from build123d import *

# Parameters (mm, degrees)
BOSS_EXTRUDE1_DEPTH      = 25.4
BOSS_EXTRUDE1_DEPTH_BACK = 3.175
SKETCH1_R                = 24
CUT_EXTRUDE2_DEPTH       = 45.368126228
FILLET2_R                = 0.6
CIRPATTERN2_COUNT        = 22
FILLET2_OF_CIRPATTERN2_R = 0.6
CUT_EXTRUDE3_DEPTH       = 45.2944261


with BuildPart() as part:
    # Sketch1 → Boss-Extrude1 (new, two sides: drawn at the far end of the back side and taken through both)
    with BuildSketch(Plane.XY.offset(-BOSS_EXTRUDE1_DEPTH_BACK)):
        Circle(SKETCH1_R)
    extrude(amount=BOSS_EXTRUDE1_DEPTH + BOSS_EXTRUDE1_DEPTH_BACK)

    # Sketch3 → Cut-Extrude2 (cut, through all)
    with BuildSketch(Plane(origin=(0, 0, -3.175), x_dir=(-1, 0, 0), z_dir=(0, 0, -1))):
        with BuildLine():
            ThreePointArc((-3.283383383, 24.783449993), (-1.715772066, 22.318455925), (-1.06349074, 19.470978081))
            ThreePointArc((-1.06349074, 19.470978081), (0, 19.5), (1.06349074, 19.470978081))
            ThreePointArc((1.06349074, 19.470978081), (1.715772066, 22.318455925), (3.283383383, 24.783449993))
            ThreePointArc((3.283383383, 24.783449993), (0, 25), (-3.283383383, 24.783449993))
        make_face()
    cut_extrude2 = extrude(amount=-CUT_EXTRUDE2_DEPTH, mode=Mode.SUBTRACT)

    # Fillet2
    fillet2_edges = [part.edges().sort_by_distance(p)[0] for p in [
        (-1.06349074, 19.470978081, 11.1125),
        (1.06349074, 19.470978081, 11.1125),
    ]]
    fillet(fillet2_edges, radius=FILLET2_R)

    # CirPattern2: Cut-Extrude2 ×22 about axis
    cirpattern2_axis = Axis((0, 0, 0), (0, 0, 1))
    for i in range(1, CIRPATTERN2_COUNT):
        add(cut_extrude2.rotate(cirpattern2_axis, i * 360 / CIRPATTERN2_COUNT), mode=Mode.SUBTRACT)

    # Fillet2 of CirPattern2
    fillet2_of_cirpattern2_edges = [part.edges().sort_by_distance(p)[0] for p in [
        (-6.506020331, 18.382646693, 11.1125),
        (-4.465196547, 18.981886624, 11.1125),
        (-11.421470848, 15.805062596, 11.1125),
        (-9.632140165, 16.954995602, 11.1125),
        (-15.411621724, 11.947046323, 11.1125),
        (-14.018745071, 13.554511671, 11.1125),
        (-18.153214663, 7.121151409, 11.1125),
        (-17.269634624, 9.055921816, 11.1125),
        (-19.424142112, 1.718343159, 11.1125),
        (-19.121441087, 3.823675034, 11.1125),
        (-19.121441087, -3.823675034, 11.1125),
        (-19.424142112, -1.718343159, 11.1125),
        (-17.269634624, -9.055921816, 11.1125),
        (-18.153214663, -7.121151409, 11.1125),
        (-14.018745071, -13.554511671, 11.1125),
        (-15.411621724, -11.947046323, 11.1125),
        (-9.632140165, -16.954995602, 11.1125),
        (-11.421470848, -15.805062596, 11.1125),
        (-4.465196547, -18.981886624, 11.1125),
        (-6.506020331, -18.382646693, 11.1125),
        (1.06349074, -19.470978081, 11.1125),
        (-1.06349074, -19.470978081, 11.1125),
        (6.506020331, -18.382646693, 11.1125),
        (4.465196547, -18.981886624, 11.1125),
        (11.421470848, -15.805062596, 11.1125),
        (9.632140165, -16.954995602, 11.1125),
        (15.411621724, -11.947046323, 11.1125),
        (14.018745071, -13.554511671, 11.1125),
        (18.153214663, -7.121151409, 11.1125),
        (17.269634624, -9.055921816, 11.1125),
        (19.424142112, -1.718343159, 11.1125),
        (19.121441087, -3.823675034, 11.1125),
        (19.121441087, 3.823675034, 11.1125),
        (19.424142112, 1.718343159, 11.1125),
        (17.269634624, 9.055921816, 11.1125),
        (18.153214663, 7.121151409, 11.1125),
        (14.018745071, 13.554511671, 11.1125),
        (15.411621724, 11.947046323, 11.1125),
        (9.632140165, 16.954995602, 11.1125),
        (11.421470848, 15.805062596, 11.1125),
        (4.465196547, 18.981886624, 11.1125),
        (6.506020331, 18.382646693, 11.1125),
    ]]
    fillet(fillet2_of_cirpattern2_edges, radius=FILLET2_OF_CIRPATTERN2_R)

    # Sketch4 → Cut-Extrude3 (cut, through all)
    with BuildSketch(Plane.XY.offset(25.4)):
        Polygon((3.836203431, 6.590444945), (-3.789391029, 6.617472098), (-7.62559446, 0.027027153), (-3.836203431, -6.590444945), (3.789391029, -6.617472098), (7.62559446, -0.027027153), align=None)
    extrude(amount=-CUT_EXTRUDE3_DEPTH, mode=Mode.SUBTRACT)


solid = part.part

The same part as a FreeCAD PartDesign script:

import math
import FreeCAD as App
import Part
import Sketcher

V = App.Vector
Q = App.Units.Quantity


def edges_at(feature, points):
    """Names of the edges that pass closest to the given points."""
    edges = feature.Shape.Edges
    near = lambda p: min(range(len(edges)), key=lambda i: edges[i].distToShape(Part.Vertex(*p))[0])
    return sorted({f"Edge{near(p) + 1}" for p in points})


def add_polygon(sketch, points):
    """Adds a closed chain of lines whose ends are joined by coincident constraints."""
    first, n = sketch.GeometryCount, len(points)
    for a, b in zip(points, points[1:] + points[:1]):
        sketch.addGeometry(Part.LineSegment(App.Vector(*a, 0), App.Vector(*b, 0)), False)
    for i in range(n):
        sketch.addConstraint(Sketcher.Constraint("Coincident", first + i, 2, first + (i + 1) % n, 1))

doc = App.newDocument("Part")
body = doc.addObject("PartDesign::Body", "Body")

sketch1 = body.newObject("Sketcher::SketchObject", "Sketch")
sketch1.AttachmentSupport = (doc.getObject("XY_Plane"), [""])
sketch1.MapMode = "FlatFace"
sketch1.addGeometry(Part.Circle(V(0, 0, 0), V(0, 0, 1), 24), False)
sketch1.addConstraint([
    Sketcher.Constraint("Coincident", 0, 3, -1, 1),
    Sketcher.Constraint("Diameter", 0, Q("48 mm")),
])
pad1 = body.newObject("PartDesign::Pad", "Pad")
pad1.Profile = sketch1
pad1.Type = "TwoLengths"
pad1.Length = 25.4
pad1.Length2 = 3.175

sketch2 = body.newObject("Sketcher::SketchObject", "Sketch001")
sketch2.AttachmentSupport = (doc.getObject("XY_Plane"), [""])
sketch2.MapMode = "FlatFace"
sketch2.AttachmentOffset = App.Placement(V(0, 0, -3.175), App.Rotation())
sketch2.addGeometry([
    Part.ArcOfCircle(Part.Circle(V(9.652851, 19.001833, 0), V(0, 0, 1), 8.602163), math.radians(137.769725), math.radians(176.873652)),
    Part.ArcOfCircle(Part.Circle(V(0, 0, 0), V(0, 0, 1), 19.5), math.radians(86.873652), math.radians(93.126348)),
    Part.ArcOfCircle(Part.Circle(V(-9.652851, 19.001833, 0), V(0, 0, 1), 8.602163), math.radians(3.126348), math.radians(42.230275)),
    Part.ArcOfCircle(Part.Circle(V(0, 0, 0), V(0, 0, 1), 25), math.radians(82.453237), math.radians(97.546763)),
], False)
sketch2.addConstraint([
    Sketcher.Constraint("Coincident", 0, 2, 1, 1),
    Sketcher.Constraint("Coincident", 1, 2, 2, 1),
    Sketcher.Constraint("Coincident", 2, 2, 3, 2),
    Sketcher.Constraint("Coincident", 3, 1, 0, 1),
    Sketcher.Constraint("Coincident", 1, 3, -1, 1),
    Sketcher.Constraint("Coincident", 3, 3, -1, 1),
    Sketcher.Constraint("Equal", 0, 2),
    Sketcher.Constraint("Symmetric", 0, 3, 2, 3, -2),
    Sketcher.Constraint("Radius", 3, Q("25 mm")),
    Sketcher.Constraint("Radius", 1, Q("19.5 mm")),
    Sketcher.Constraint("Radius", 0, Q("8.602163 mm")),
    Sketcher.Constraint("DistanceX", -1, 1, 0, 3, Q("9.652851 mm")),
    Sketcher.Constraint("DistanceX", -1, 1, 0, 2, Q("1.063491 mm")),
])
pocket1 = body.newObject("PartDesign::Pocket", "Pocket")
pocket1.Profile = sketch2
pocket1.Type = "ThroughAll"
pocket1.Reversed = True
doc.recompute()

fillet = body.newObject("PartDesign::Fillet", "Fillet")
fillet.Base = (pocket1, edges_at(pocket1, [(-1.063, 19.471, 11.113), (1.063, 19.471, 11.113)]))
fillet.Radius = 0.6
doc.recompute()

polarpattern = body.newObject("PartDesign::PolarPattern", "PolarPattern")
polarpattern.Originals = [pocket1]
polarpattern.Axis = (doc.getObject("Z_Axis"), [""])
polarpattern.Angle = 360
polarpattern.Occurrences = 22
body.Tip = polarpattern
doc.recompute()

fillet2 = body.newObject("PartDesign::Fillet", "Fillet001")
fillet2.Base = (polarpattern, edges_at(polarpattern, [
    (-6.506, 18.383, 11.113),
    (-4.465, 18.982, 11.113),
    (-11.421, 15.805, 11.113),
    (-9.632, 16.955, 11.113),
    (-15.412, 11.947, 11.113),
    (-14.019, 13.555, 11.113),
    (-18.153, 7.121, 11.113),
    (-17.27, 9.056, 11.113),
    (-19.424, 1.718, 11.113),
    (-19.121, 3.824, 11.113),
    (-19.121, -3.824, 11.113),
    (-19.424, -1.718, 11.113),
    (-17.27, -9.056, 11.113),
    (-18.153, -7.121, 11.113),
    (-14.019, -13.555, 11.113),
    (-15.412, -11.947, 11.113),
    (-9.632, -16.955, 11.113),
    (-11.421, -15.805, 11.113),
    (-4.465, -18.982, 11.113),
    (-6.506, -18.383, 11.113),
    (1.063, -19.471, 11.113),
    (-1.063, -19.471, 11.113),
    (6.506, -18.383, 11.113),
    (4.465, -18.982, 11.113),
    (11.421, -15.805, 11.113),
    (9.632, -16.955, 11.113),
    (15.412, -11.947, 11.113),
    (14.019, -13.555, 11.113),
    (18.153, -7.121, 11.113),
    (17.27, -9.056, 11.113),
    (19.424, -1.718, 11.113),
    (19.121, -3.824, 11.113),
    (19.121, 3.824, 11.113),
    (19.424, 1.718, 11.113),
    (17.27, 9.056, 11.113),
    (18.153, 7.121, 11.113),
    (14.019, 13.555, 11.113),
    (15.412, 11.947, 11.113),
    (9.632, 16.955, 11.113),
    (11.421, 15.805, 11.113),
    (4.465, 18.982, 11.113),
    (6.506, 18.383, 11.113),
]))
fillet2.Radius = 0.6

sketch3 = body.newObject("Sketcher::SketchObject", "Sketch002")
sketch3.AttachmentSupport = (doc.getObject("XY_Plane"), [""])
sketch3.MapMode = "FlatFace"
sketch3.AttachmentOffset = App.Placement(V(0, 0, 25.4), App.Rotation())
add_polygon(sketch3, [(3.836203, 6.590445), (-3.789391, 6.617472), (-7.625594, 0.027027), (-3.836203, -6.590445), (3.789391, -6.617472), (7.625594, -0.027027)])
sketch3.addConstraint([
    Sketcher.Constraint("Symmetric", 0, 2, 3, 2, -1, 1),
    Sketcher.Constraint("Symmetric", 1, 2, 4, 2, -1, 1),
    Sketcher.Constraint("Symmetric", 2, 2, 5, 2, -1, 1),
    Sketcher.Constraint("Equal", 0, 1),
    Sketcher.Constraint("Equal", 1, 2),
    Sketcher.Constraint("DistanceY", 3, 2, 1, 2, Q("6.644499 mm")),
    Sketcher.Constraint("DistanceX", 0, 2, -1, 1, Q("3.789391 mm")),
    Sketcher.Constraint("DistanceX", 1, 2, 2, 2, Q("3.789391 mm")),
    Sketcher.Constraint("DistanceX", 1, 2, 4, 2, Q("15.251189 mm")),
])
pocket2 = body.newObject("PartDesign::Pocket", "Pocket001")
pocket2.Profile = sketch3
pocket2.Type = "ThroughAll"

doc.recompute()
